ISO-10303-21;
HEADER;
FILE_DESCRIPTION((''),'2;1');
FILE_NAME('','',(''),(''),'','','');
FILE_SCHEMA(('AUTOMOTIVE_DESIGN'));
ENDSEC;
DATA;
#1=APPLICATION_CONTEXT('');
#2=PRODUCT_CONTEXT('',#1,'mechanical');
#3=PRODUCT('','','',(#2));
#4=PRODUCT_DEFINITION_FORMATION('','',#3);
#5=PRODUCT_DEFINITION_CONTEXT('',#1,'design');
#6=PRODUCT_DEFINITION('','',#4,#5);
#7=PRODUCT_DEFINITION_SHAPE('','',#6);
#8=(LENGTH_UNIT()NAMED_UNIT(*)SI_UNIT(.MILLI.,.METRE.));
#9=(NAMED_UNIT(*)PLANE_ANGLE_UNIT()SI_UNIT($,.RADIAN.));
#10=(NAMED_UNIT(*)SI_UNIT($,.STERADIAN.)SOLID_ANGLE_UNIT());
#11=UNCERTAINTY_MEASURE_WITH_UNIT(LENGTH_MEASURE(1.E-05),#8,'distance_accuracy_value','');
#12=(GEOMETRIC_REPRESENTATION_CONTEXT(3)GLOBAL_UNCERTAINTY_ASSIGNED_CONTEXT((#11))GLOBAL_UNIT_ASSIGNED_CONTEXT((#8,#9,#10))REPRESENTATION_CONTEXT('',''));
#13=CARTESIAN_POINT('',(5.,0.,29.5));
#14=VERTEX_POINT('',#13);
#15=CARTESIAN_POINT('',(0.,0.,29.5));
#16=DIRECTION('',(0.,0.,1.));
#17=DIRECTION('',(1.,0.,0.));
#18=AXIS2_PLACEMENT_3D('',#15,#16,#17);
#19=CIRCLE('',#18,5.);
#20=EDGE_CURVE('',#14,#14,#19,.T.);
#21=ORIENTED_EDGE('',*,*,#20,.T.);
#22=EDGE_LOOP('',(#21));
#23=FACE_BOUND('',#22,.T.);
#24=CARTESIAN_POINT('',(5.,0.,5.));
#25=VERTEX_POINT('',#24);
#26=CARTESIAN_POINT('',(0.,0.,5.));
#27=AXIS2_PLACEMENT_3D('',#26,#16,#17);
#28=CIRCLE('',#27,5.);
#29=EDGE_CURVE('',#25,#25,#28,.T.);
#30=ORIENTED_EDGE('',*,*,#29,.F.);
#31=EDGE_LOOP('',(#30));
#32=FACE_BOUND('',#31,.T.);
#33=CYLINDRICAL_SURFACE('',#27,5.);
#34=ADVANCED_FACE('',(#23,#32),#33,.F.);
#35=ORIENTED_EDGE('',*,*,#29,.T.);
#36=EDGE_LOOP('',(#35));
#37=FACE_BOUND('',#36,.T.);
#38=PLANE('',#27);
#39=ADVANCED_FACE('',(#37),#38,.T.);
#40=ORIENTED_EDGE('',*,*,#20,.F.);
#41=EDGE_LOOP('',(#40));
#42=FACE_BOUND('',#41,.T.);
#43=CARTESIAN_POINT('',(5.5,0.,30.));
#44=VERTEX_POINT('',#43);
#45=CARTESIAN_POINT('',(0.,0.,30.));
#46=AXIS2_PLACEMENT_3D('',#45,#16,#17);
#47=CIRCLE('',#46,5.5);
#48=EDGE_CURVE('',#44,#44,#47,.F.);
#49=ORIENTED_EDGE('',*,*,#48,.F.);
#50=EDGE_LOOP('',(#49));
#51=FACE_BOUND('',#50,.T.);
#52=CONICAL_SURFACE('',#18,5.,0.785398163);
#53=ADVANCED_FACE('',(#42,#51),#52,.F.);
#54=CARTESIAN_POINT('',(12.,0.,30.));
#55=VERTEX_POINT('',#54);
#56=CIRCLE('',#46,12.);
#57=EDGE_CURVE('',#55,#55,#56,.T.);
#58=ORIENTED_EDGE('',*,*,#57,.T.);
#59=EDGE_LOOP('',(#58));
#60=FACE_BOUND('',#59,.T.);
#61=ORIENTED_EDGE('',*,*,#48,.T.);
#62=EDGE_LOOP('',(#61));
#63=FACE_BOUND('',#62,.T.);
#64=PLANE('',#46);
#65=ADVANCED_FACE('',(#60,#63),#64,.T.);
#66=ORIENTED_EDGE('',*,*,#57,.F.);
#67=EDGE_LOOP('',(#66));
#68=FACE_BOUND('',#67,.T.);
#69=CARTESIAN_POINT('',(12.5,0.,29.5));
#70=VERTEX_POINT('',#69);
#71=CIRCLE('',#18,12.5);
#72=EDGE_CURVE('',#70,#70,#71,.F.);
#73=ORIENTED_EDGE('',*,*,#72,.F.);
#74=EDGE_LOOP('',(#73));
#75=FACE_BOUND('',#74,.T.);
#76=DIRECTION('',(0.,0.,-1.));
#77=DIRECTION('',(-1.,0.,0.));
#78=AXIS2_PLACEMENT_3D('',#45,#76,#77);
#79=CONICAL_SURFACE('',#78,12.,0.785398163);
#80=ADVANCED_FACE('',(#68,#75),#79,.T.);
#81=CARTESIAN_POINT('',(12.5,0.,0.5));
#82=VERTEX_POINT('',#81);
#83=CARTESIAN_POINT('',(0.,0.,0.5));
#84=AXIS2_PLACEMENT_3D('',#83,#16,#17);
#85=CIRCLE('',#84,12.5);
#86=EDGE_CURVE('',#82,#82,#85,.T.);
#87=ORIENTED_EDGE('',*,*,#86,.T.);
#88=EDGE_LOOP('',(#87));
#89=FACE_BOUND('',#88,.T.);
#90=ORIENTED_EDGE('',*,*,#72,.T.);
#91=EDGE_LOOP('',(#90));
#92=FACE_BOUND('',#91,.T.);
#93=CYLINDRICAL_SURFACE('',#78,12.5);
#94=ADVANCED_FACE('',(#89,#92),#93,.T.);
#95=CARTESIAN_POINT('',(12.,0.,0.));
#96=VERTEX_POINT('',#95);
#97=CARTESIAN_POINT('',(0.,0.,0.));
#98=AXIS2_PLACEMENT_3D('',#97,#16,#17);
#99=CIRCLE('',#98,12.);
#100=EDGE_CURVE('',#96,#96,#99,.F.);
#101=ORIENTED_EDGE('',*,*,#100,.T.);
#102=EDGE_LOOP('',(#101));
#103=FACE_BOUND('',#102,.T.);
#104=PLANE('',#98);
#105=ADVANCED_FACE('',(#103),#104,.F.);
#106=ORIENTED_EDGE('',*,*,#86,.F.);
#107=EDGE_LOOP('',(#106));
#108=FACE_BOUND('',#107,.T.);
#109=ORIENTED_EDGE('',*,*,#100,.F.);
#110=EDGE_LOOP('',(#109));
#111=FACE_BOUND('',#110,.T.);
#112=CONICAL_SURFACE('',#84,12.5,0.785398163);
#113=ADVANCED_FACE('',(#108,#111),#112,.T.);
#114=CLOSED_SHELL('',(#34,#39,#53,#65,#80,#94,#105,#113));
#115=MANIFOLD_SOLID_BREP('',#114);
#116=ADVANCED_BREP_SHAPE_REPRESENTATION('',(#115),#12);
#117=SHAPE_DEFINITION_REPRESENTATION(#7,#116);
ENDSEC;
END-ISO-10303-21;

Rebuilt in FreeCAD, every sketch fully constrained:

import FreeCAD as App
import Part
import Sketcher
Q = App.Units.Quantity


def edges_at(feature, points):
    """Names of the edges that pass closest to the given points."""
    edges = feature.Shape.Edges
    near = lambda p: min(range(len(edges)), key=lambda i: edges[i].distToShape(Part.Vertex(*p))[0])
    return sorted({f"Edge{near(p) + 1}" for p in points})

doc = App.newDocument("Part")
body = doc.addObject("PartDesign::Body", "Body")

# Sketch on XY plane
sketch1 = body.newObject("Sketcher::SketchObject", "Sketch")
sketch1.AttachmentSupport = (doc.getObject("XY_Plane"), [""])
sketch1.MapMode = "FlatFace"
sketch1.addGeometry(Part.Circle(App.Vector(0, 0, 0), App.Vector(0, 0, 1), 12), False)
sketch1.addConstraint([
    Sketcher.Constraint("Coincident", 0, 3, -1, 1),
    Sketcher.Constraint("Diameter", 0, Q("25 mm")),
])
pad1 = body.newObject("PartDesign::Pad", "Pad")
pad1.Profile = sketch1
pad1.Length = 30

# Sketch on XY plane
sketch2 = body.newObject("Sketcher::SketchObject", "Sketch001")
sketch2.AttachmentSupport = (doc.getObject("XY_Plane"), [""])
sketch2.MapMode = "FlatFace"
sketch2.AttachmentOffset = App.Placement(App.Vector(0, 0, 30), App.Rotation())
sketch2.addGeometry(Part.Circle(App.Vector(0, 0, 0), App.Vector(0, 0, 1), 5), False)
sketch2.addConstraint([
    Sketcher.Constraint("Coincident", 0, 3, -1, 1),
    Sketcher.Constraint("Diameter", 0, Q("10 mm")),
])
pocket1 = body.newObject("PartDesign::Pocket", "Pocket")
pocket1.Profile = sketch2
pocket1.Length = 25
doc.recompute()

chamfer = body.newObject("PartDesign::Chamfer", "Chamfer")
chamfer.Base = (pocket1, edges_at(pocket1, [(-12.5, 0, 0), (-12.5, 0, 30), (-5, 0, 30)]))
chamfer.Size = 0.5

doc.recompute()
